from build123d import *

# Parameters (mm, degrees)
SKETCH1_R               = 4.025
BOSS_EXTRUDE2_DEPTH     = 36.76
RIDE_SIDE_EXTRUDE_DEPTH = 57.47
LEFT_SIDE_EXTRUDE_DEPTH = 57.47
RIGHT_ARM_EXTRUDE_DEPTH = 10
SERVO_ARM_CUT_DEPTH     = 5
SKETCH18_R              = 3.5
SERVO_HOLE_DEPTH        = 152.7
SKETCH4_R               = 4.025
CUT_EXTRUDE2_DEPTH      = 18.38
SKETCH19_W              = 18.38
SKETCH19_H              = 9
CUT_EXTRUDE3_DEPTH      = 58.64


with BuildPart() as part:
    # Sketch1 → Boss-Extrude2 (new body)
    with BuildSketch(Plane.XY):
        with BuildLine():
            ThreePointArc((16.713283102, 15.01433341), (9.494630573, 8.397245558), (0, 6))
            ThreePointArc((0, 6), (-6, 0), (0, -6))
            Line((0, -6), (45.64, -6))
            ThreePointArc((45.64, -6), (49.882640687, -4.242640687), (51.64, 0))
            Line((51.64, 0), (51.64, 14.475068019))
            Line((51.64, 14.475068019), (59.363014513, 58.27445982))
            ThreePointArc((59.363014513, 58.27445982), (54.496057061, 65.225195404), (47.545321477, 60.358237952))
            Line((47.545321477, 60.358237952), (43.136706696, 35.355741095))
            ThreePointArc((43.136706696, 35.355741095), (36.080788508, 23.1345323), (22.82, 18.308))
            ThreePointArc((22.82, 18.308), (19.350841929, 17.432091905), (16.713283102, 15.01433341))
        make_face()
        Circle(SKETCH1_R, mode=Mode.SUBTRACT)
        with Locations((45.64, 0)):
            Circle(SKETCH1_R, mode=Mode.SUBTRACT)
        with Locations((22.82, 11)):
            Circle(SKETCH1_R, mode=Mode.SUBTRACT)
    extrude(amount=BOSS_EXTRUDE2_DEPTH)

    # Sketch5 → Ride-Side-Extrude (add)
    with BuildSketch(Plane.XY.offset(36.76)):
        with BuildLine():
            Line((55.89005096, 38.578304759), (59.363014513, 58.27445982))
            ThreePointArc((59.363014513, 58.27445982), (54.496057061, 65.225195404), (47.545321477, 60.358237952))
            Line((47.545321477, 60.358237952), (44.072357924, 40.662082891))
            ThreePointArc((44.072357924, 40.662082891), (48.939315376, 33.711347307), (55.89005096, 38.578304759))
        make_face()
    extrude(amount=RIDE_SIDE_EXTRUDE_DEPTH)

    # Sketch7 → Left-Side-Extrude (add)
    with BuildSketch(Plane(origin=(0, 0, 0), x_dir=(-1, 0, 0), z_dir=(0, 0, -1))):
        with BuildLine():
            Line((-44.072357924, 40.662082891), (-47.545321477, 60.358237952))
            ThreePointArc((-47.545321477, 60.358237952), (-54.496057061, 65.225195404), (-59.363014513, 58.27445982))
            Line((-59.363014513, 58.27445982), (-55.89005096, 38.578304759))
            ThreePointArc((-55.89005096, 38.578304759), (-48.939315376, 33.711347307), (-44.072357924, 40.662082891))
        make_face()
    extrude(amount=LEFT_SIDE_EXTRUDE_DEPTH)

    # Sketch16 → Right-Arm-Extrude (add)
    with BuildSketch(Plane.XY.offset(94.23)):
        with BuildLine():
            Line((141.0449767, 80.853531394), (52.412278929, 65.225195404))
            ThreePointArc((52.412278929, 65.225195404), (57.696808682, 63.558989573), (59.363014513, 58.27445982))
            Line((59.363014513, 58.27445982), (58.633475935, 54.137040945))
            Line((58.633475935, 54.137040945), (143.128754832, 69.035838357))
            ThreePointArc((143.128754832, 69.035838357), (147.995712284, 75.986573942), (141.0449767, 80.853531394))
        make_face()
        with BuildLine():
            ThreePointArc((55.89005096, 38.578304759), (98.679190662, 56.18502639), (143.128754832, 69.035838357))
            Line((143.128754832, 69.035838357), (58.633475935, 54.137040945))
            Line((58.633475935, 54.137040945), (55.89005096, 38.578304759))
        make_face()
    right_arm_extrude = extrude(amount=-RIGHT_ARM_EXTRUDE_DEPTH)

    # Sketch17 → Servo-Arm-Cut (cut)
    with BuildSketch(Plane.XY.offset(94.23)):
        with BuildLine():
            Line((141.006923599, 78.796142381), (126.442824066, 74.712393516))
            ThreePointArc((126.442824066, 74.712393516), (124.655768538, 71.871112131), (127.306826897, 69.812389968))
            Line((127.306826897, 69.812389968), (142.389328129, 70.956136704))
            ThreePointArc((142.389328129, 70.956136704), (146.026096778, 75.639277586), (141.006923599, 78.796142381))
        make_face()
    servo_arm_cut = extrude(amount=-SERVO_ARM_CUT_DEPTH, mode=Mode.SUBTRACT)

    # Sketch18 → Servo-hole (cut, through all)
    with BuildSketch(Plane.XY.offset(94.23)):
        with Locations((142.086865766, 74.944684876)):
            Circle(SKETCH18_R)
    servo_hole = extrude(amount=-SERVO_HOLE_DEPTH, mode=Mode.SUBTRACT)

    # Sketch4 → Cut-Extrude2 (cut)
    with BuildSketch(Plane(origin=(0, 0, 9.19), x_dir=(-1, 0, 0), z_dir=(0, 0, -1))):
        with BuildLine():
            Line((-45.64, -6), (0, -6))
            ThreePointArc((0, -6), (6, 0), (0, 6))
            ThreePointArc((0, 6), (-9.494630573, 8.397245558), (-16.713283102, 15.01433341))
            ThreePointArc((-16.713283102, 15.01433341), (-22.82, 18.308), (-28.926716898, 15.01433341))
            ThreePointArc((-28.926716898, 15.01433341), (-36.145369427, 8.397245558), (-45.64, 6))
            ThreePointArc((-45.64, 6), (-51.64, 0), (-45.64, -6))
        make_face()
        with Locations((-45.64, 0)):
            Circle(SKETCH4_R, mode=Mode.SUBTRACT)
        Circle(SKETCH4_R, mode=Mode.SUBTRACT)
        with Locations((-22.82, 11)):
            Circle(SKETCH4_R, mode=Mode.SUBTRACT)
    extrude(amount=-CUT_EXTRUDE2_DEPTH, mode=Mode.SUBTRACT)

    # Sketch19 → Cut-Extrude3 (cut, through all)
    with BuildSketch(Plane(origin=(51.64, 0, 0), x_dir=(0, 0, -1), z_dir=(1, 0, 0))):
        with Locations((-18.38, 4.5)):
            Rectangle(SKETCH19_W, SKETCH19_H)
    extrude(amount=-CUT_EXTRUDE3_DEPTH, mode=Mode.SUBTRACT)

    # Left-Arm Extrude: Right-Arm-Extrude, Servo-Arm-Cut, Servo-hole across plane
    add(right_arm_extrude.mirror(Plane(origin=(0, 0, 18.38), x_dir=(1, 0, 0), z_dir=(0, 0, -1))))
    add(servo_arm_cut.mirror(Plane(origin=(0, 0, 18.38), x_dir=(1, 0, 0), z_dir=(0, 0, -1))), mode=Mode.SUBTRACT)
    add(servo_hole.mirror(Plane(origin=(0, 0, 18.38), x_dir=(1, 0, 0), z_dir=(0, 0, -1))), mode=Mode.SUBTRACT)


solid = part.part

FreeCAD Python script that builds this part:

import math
import FreeCAD as App
import Part
import Sketcher
Q = App.Units.Quantity


def add_polygon(sketch, points):
    """Adds a closed chain of lines whose ends are joined by coincident constraints."""
    first, n = sketch.GeometryCount, len(points)
    for a, b in zip(points, points[1:] + points[:1]):
        sketch.addGeometry(Part.LineSegment(App.Vector(*a, 0), App.Vector(*b, 0)), False)
    for i in range(n):
        sketch.addConstraint(Sketcher.Constraint("Coincident", first + i, 2, first + (i + 1) % n, 1))

doc = App.newDocument("Part")
body = doc.addObject("PartDesign::Body", "Body")

# Sketch on XY plane
sketch1 = doc.addObject("Sketcher::SketchObject", "Sketch")
body.addObject(sketch1)
sketch1.AttachmentSupport = (doc.XY_Plane, [""])
sketch1.MapMode = "FlatFace"
sketch1.addGeometry([
    Part.ArcOfCircle(Part.Circle(App.Vector(0, 26, 0), App.Vector(0, 0, 1), 20), math.radians(-90), math.radians(-33)),  # 0
    Part.ArcOfCircle(Part.Circle(App.Vector(0, 0, 0), App.Vector(0, 0, 1), 6), math.radians(90), math.radians(270)),  # 1
    Part.LineSegment(App.Vector(0, -6, 0), App.Vector(45.6, -6, 0)),  # 2
    Part.ArcOfCircle(Part.Circle(App.Vector(45.6, 0, 0), App.Vector(0, 0, 1), 6), math.radians(-90), math.radians(0)),  # 3
    Part.LineSegment(App.Vector(51.6, 0, 0), App.Vector(51.6, 14.5, 0)),  # 4
    Part.LineSegment(App.Vector(51.6, 14.5, 0), App.Vector(59.4, 58.3, 0)),  # 5
    Part.ArcOfCircle(Part.Circle(App.Vector(53.5, 59.3, 0), App.Vector(0, 0, 1), 6), math.radians(-10), math.radians(170)),  # 6
    Part.LineSegment(App.Vector(47.5, 60.4, 0), App.Vector(43.1, 35.4, 0)),  # 7
    Part.ArcOfCircle(Part.Circle(App.Vector(22.8, 38.9, 0), App.Vector(0, 0, 1), 20.6), math.radians(-90), math.radians(-10)),  # 8
    Part.ArcOfCircle(Part.Circle(App.Vector(22.8, 11, 0), App.Vector(0, 0, 1), 7.3), math.radians(90), math.radians(147)),  # 9
    Part.Circle(App.Vector(0, 0, 0), App.Vector(0, 0, 1), 4),  # 10
    Part.Circle(App.Vector(45.6, 0, 0), App.Vector(0, 0, 1), 4),  # 11
    Part.Circle(App.Vector(22.8, 11, 0), App.Vector(0, 0, 1), 4),  # 12
], False)
sketch1.addConstraint([
    Sketcher.Constraint("Tangent", 0, 1, 1, 1),
    Sketcher.Constraint("Tangent", 1, 2, 2, 1),
    Sketcher.Constraint("Tangent", 2, 2, 3, 1),
    Sketcher.Constraint("Tangent", 3, 2, 4, 1),
    Sketcher.Constraint("Coincident", 4, 2, 5, 1),
    Sketcher.Constraint("Tangent", 5, 2, 6, 1),
    Sketcher.Constraint("Tangent", 6, 2, 7, 1),
    Sketcher.Constraint("Tangent", 7, 2, 8, 2),
    Sketcher.Constraint("Tangent", 8, 1, 9, 1),
    Sketcher.Constraint("Tangent", 9, 2, 0, 2),
    Sketcher.Constraint("Horizontal", 2),
    Sketcher.Constraint("Vertical", 4),
    Sketcher.Constraint("Coincident", 1, 3, -1, 1),
    Sketcher.Constraint("Coincident", 10, 3, -1, 1),
    Sketcher.Constraint("Coincident", 11, 3, 3, 3),
    Sketcher.Constraint("Coincident", 12, 3, 9, 3),
    Sketcher.Constraint("Equal", 1, 3),
    Sketcher.Constraint("Equal", 3, 6),
    Sketcher.Constraint("Equal", 10, 11),
    Sketcher.Constraint("Equal", 11, 12),
    Sketcher.Constraint("PointOnObject", 0, 3, -2),
    Sketcher.Constraint("Parallel", 5, 7),
    Sketcher.Constraint("Vertical", 8, 3, 9, 3),
    Sketcher.Constraint("Radius", 1, Q("6 mm")),
    Sketcher.Constraint("Diameter", 10, Q("8.05 mm")),
    Sketcher.Constraint("Angle", 5, Q("80 deg")),
    Sketcher.Constraint("DistanceY", -1, 1, 9, 3, Q("11 mm")),
    Sketcher.Constraint("Radius", 9, Q("7.308 mm")),
    Sketcher.Constraint("DistanceX", 2, 1, 2, 2, Q("45.64 mm")),
    Sketcher.Constraint("DistanceX", -1, 1, 8, 3, Q("22.82 mm")),
    Sketcher.Constraint("Radius", 8, Q("20.630125 mm")),
    Sketcher.Constraint("Distance", 7, Q("25.388201 mm")),
])
pad1 = doc.addObject("PartDesign::Pad", "Pad")
body.addObject(pad1)
pad1.Profile = sketch1
pad1.Length = 36.76

# Sketch on XY plane
sketch2 = doc.addObject("Sketcher::SketchObject", "Sketch001")
body.addObject(sketch2)
sketch2.AttachmentSupport = (doc.XY_Plane, [""])
sketch2.MapMode = "FlatFace"
sketch2.AttachmentOffset = App.Placement(App.Vector(0, 0, 36.76), App.Rotation())
sketch2.addGeometry([
    Part.LineSegment(App.Vector(56, 39, 0), App.Vector(59, 58, 0)),
    Part.ArcOfCircle(Part.Circle(App.Vector(53, 59, 0), App.Vector(0, 0, 1), 6), math.radians(-10), math.radians(170)),
    Part.LineSegment(App.Vector(48, 60, 0), App.Vector(44, 41, 0)),
    Part.ArcOfCircle(Part.Circle(App.Vector(50, 40, 0), App.Vector(0, 0, 1), 6), math.radians(170), math.radians(350)),
], False)
sketch2.addConstraint([
    Sketcher.Constraint("Tangent", 0, 2, 1, 1),
    Sketcher.Constraint("Tangent", 1, 2, 2, 1),
    Sketcher.Constraint("Tangent", 2, 2, 3, 1),
    Sketcher.Constraint("Tangent", 3, 2, 0, 1),
    Sketcher.Constraint("Equal", 1, 3),
    Sketcher.Constraint("Radius", 1, Q("6 mm")),
    Sketcher.Constraint("Angle", 0, Q("80 deg")),
    Sketcher.Constraint("Distance", 0, Q("20 mm")),
    Sketcher.Constraint("DistanceY", -1, 1, 1, 3, Q("59.316349 mm")),
    Sketcher.Constraint("DistanceX", -1, 1, 1, 2, Q("47.545321 mm")),
])
pad2 = doc.addObject("PartDesign::Pad", "Pad001")
body.addObject(pad2)
pad2.Profile = sketch2
pad2.Length = 57.47

# Sketch on XY plane
sketch3 = doc.addObject("Sketcher::SketchObject", "Sketch002")
body.addObject(sketch3)
sketch3.AttachmentSupport = (doc.XY_Plane, [""])
sketch3.MapMode = "FlatFace"
sketch3.addGeometry([
    Part.LineSegment(App.Vector(44, 41, 0), App.Vector(48, 60, 0)),
    Part.ArcOfCircle(Part.Circle(App.Vector(53, 59, 0), App.Vector(0, 0, 1), 6), math.radians(-10), math.radians(170)),
    Part.LineSegment(App.Vector(59, 58, 0), App.Vector(56, 39, 0)),
    Part.ArcOfCircle(Part.Circle(App.Vector(50, 40, 0), App.Vector(0, 0, 1), 6), math.radians(170), math.radians(350)),
], False)
sketch3.addConstraint([
    Sketcher.Constraint("Tangent", 0, 2, 1, 2),
    Sketcher.Constraint("Tangent", 1, 1, 2, 1),
    Sketcher.Constraint("Tangent", 2, 2, 3, 2),
    Sketcher.Constraint("Tangent", 3, 1, 0, 1),
    Sketcher.Constraint("Equal", 1, 3),
    Sketcher.Constraint("Radius", 1, Q("6 mm")),
    Sketcher.Constraint("Angle", 0, Q("80 deg")),
    Sketcher.Constraint("Distance", 0, Q("20 mm")),
    Sketcher.Constraint("DistanceY", -1, 1, 1, 3, Q("59.316349 mm")),
    Sketcher.Constraint("DistanceX", -1, 1, 0, 2, Q("47.545321 mm")),
])
pad3 = doc.addObject("PartDesign::Pad", "Pad002")
body.addObject(pad3)
pad3.Profile = sketch3
pad3.Length = 57.47
pad3.Reversed = True

# Sketch on XY plane
sketch4 = doc.addObject("Sketcher::SketchObject", "Sketch003")
body.addObject(sketch4)
sketch4.AttachmentSupport = (doc.XY_Plane, [""])
sketch4.MapMode = "FlatFace"
sketch4.AttachmentOffset = App.Placement(App.Vector(0, 0, 94.23), App.Rotation())
sketch4.addGeometry([
    Part.LineSegment(App.Vector(141, 80.9, 0), App.Vector(52.4, 65.2, 0)),  # 0
    Part.ArcOfCircle(Part.Circle(App.Vector(53.5, 59.3, 0), App.Vector(0, 0, 1), 6), math.radians(-10), math.radians(100)),  # 1
    Part.LineSegment(App.Vector(59.4, 58.3, 0), App.Vector(58.6, 54.1, 0)),  # 2
    Part.LineSegment(App.Vector(58.6, 54.1, 0), App.Vector(55.9, 38.6, 0)),  # 3
    Part.ArcOfCircle(Part.Circle(App.Vector(238.8, -345.1, 0), App.Vector(0, 0, 1), 425), math.radians(103), math.radians(115.49)),  # 4
    Part.ArcOfCircle(Part.Circle(App.Vector(142.1, 74.9, 0), App.Vector(0, 0, 1), 6), math.radians(-80), math.radians(100)),  # 5
], False)
sketch4.addConstraint([
    Sketcher.Constraint("Tangent", 0, 2, 1, 2),
    Sketcher.Constraint("Tangent", 1, 1, 2, 1),
    Sketcher.Constraint("Coincident", 2, 2, 3, 1),
    Sketcher.Constraint("Coincident", 3, 2, 4, 2),
    Sketcher.Constraint("Coincident", 4, 1, 5, 1),
    Sketcher.Constraint("Tangent", 5, 2, 0, 1),
    Sketcher.Constraint("Equal", 1, 5),
    Sketcher.Constraint("Parallel", 2, 3),
    Sketcher.Constraint("Radius", 1, Q("6 mm")),
    Sketcher.Constraint("Radius", 4, Q("425 mm")),
    Sketcher.Constraint("Angle", 0, Q("-170 deg")),
    Sketcher.Constraint("Angle", 2, Q("-100 deg")),
    Sketcher.Constraint("Distance", 0, Q("90 mm")),
    Sketcher.Constraint("DistanceX", 2, 2, 5, 2, Q("82.411501 mm")),
    Sketcher.Constraint("DistanceY", -1, 1, 1, 3, Q("59.316349 mm")),
    Sketcher.Constraint("DistanceX", -1, 1, 0, 2, Q("52.412279 mm")),
    Sketcher.Constraint("DistanceX", -1, 1, 3, 2, Q("55.890051 mm")),
    Sketcher.Constraint("DistanceY", -1, 1, 4, 1, Q("69.035838 mm")),
])
pad4 = doc.addObject("PartDesign::Pad", "Pad003")
body.addObject(pad4)
pad4.Profile = sketch4
pad4.Length = 10
pad4.Reversed = True

# Sketch on XY plane
sketch5 = doc.addObject("Sketcher::SketchObject", "Sketch004")
body.addObject(sketch5)
sketch5.AttachmentSupport = (doc.XY_Plane, [""])
sketch5.MapMode = "FlatFace"
sketch5.AttachmentOffset = App.Placement(App.Vector(0, 0, 94.23), App.Rotation())
sketch5.addGeometry([
    Part.LineSegment(App.Vector(141, 78.8, 0), App.Vector(126.4, 74.7, 0)),
    Part.ArcOfCircle(Part.Circle(App.Vector(127.1, 72.3, 0), App.Vector(0, 0, 1), 2.5), math.radians(106), math.radians(274)),
    Part.LineSegment(App.Vector(127.3, 69.8, 0), App.Vector(142.4, 71, 0)),
    Part.ArcOfCircle(Part.Circle(App.Vector(142.1, 74.9, 0), App.Vector(0, 0, 1), 4), math.radians(-86), math.radians(106)),
], False)
sketch5.addConstraint([
    Sketcher.Constraint("Tangent", 0, 2, 1, 1),
    Sketcher.Constraint("Tangent", 1, 2, 2, 1),
    Sketcher.Constraint("Tangent", 2, 2, 3, 1),
    Sketcher.Constraint("Tangent", 3, 2, 0, 1),
    Sketcher.Constraint("Radius", 3, Q("4 mm")),
    Sketcher.Constraint("Radius", 1, Q("2.5 mm")),
    Sketcher.Constraint("DistanceX", 1, 2, 2, 2, Q("15.082501 mm")),
    Sketcher.Constraint("DistanceX", 0, 2, 3, 2, Q("14.5641 mm")),
    Sketcher.Constraint("DistanceY", -1, 1, 1, 2, Q("69.81239 mm")),
    Sketcher.Constraint("DistanceX", -1, 1, 2, 2, Q("142.389328 mm")),
])
pocket1 = doc.addObject("PartDesign::Pocket", "Pocket")
body.addObject(pocket1)
pocket1.Profile = sketch5
pocket1.Length = 5

# Sketch on XY plane
sketch6 = doc.addObject("Sketcher::SketchObject", "Sketch005")
body.addObject(sketch6)
sketch6.AttachmentSupport = (doc.XY_Plane, [""])
sketch6.MapMode = "FlatFace"
sketch6.AttachmentOffset = App.Placement(App.Vector(0, 0, 94.23), App.Rotation())
sketch6.addGeometry(Part.Circle(App.Vector(142.1, 74.9, 0), App.Vector(0, 0, 1), 3.5), False)
sketch6.addConstraint([
    Sketcher.Constraint("Diameter", 0, Q("7 mm")),
    Sketcher.Constraint("DistanceX", -1, 1, 0, 3, Q("142.086866 mm")),
    Sketcher.Constraint("DistanceY", -1, 1, 0, 3, Q("74.944685 mm")),
])
pocket2 = doc.addObject("PartDesign::Pocket", "Pocket001")
body.addObject(pocket2)
pocket2.Profile = sketch6
pocket2.Type = "ThroughAll"

# Sketch on XY plane
sketch7 = doc.addObject("Sketcher::SketchObject", "Sketch006")
body.addObject(sketch7)
sketch7.AttachmentSupport = (doc.XY_Plane, [""])
sketch7.MapMode = "FlatFace"
sketch7.AttachmentOffset = App.Placement(App.Vector(0, 0, 9.19), App.Rotation())
sketch7.addGeometry([
    Part.LineSegment(App.Vector(45.6, -6, 0), App.Vector(0, -6, 0)),  # 0
    Part.ArcOfCircle(Part.Circle(App.Vector(0, 0, 0), App.Vector(0, 0, 1), 6), math.radians(90), math.radians(270)),  # 1
    Part.ArcOfCircle(Part.Circle(App.Vector(0, 26, 0), App.Vector(0, 0, 1), 20), math.radians(-90), math.radians(-33)),  # 2
    Part.ArcOfCircle(Part.Circle(App.Vector(22.8, 11, 0), App.Vector(0, 0, 1), 7.3), math.radians(33), math.radians(147)),  # 3
    Part.ArcOfCircle(Part.Circle(App.Vector(45.6, 26, 0), App.Vector(0, 0, 1), 20), math.radians(-147), math.radians(-90)),  # 4
    Part.ArcOfCircle(Part.Circle(App.Vector(45.6, 0, 0), App.Vector(0, 0, 1), 6), math.radians(-90), math.radians(90)),  # 5
    Part.Circle(App.Vector(45.6, 0, 0), App.Vector(0, 0, 1), 4),  # 6
    Part.Circle(App.Vector(0, 0, 0), App.Vector(0, 0, 1), 4),  # 7
    Part.Circle(App.Vector(22.8, 11, 0), App.Vector(0, 0, 1), 4),  # 8
], False)
sketch7.addConstraint([
    Sketcher.Constraint("Tangent", 0, 2, 1, 2),
    Sketcher.Constraint("Tangent", 1, 1, 2, 1),
    Sketcher.Constraint("Tangent", 2, 2, 3, 2),
    Sketcher.Constraint("Tangent", 3, 1, 4, 1),
    Sketcher.Constraint("Tangent", 4, 2, 5, 2),
    Sketcher.Constraint("Tangent", 5, 1, 0, 1),
    Sketcher.Constraint("Horizontal", 0),
    Sketcher.Constraint("Coincident", 1, 3, -1, 1),
    Sketcher.Constraint("Coincident", 7, 3, -1, 1),
    Sketcher.Constraint("Coincident", 6, 3, 5, 3),
    Sketcher.Constraint("Coincident", 8, 3, 3, 3),
    Sketcher.Constraint("Equal", 2, 4),
    Sketcher.Constraint("Equal", 1, 5),
    Sketcher.Constraint("Equal", 6, 7),
    Sketcher.Constraint("Equal", 7, 8),
    Sketcher.Constraint("PointOnObject", 2, 3, -2),
    Sketcher.Constraint("Vertical", 4, 3, 5, 3),
    Sketcher.Constraint("Radius", 1, Q("6 mm")),
    Sketcher.Constraint("Diameter", 6, Q("8.05 mm")),
    Sketcher.Constraint("DistanceY", -1, 1, 3, 3, Q("11 mm")),
    Sketcher.Constraint("Radius", 3, Q("7.308 mm")),
    Sketcher.Constraint("DistanceX", 0, 2, 0, 1, Q("45.64 mm")),
])
pocket3 = doc.addObject("PartDesign::Pocket", "Pocket002")
body.addObject(pocket3)
pocket3.Profile = sketch7
pocket3.Length = 18.38
pocket3.Reversed = True

# Sketch on YZ plane
sketch8 = doc.addObject("Sketcher::SketchObject", "Sketch007")
body.addObject(sketch8)
sketch8.AttachmentSupport = (doc.YZ_Plane, [""])
sketch8.MapMode = "FlatFace"
sketch8.AttachmentOffset = App.Placement(App.Vector(0, 0, 51.64), App.Rotation())
add_polygon(sketch8, [(9, 28), (0, 28), (0, 9), (9, 9)])  # lines 0-3
sketch8.addConstraint([
    Sketcher.Constraint("Horizontal", 0),
    Sketcher.Constraint("Vertical", 1),
    Sketcher.Constraint("Horizontal", 2),
    Sketcher.Constraint("Vertical", 3),
    Sketcher.Constraint("PointOnObject", 0, 2, -2),
    Sketcher.Constraint("DistanceX", 0, 2, 0, 1, Q("9 mm")),
    Sketcher.Constraint("DistanceY", 1, 2, 1, 1, Q("18.38 mm")),
    Sketcher.Constraint("DistanceY", -1, 1, 0, 2, Q("27.57 mm")),
])
pocket4 = doc.addObject("PartDesign::Pocket", "Pocket003")
body.addObject(pocket4)
pocket4.Profile = sketch8
pocket4.Type = "ThroughAll"
doc.recompute()

datumplane = doc.addObject("PartDesign::Plane", "DatumPlane")
body.addObject(datumplane)
datumplane.AttachmentSupport = (doc.XY_Plane, [""])
datumplane.MapMode = "FlatFace"
datumplane.AttachmentOffset = App.Placement(App.Vector(0, 0, 18.38), App.Rotation())
mirrored = doc.addObject("PartDesign::Mirrored", "Mirrored")
body.addObject(mirrored)
mirrored.Originals = [pad4, pocket1, pocket2]
mirrored.MirrorPlane = (datumplane, [""])
body.Tip = mirrored

doc.recompute()
